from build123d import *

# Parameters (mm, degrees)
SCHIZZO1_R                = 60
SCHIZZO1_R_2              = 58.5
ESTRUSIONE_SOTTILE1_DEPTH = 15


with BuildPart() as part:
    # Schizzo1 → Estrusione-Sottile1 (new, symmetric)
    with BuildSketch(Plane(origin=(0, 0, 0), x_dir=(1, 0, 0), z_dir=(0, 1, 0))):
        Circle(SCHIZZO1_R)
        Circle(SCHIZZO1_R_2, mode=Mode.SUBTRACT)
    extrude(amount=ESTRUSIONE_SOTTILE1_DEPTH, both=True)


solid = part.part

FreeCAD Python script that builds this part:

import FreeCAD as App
import Part
import Sketcher
from FreeCAD import Vector
Q = App.Units.Quantity

doc = App.newDocument("Part")
body = doc.addObject("PartDesign::Body", "Body")

# Sketch on XZ plane
sketch1 = doc.addObject("Sketcher::SketchObject", "Sketch")
body.addObject(sketch1)
sketch1.AttachmentSupport = (doc.XZ_Plane, [""])
sketch1.MapMode = "FlatFace"
sketch1.addGeometry([
    Part.Circle(Vector(0, 0, 0), Vector(0, 0, 1), 60),
    Part.Circle(Vector(0, 0, 0), Vector(0, 0, 1), 58.5),
], False)
sketch1.addConstraint([
    Sketcher.Constraint("Coincident", 0, 3, -1, 1),
    Sketcher.Constraint("Coincident", 1, 3, -1, 1),
    Sketcher.Constraint("Diameter", 0, Q("120 mm")),
    Sketcher.Constraint("Diameter", 1, Q("117 mm")),
])
pad1 = doc.addObject("PartDesign::Pad", "Pad")
body.addObject(pad1)
pad1.Profile = sketch1
pad1.Length = 30
pad1.Midplane = True

doc.recompute()
